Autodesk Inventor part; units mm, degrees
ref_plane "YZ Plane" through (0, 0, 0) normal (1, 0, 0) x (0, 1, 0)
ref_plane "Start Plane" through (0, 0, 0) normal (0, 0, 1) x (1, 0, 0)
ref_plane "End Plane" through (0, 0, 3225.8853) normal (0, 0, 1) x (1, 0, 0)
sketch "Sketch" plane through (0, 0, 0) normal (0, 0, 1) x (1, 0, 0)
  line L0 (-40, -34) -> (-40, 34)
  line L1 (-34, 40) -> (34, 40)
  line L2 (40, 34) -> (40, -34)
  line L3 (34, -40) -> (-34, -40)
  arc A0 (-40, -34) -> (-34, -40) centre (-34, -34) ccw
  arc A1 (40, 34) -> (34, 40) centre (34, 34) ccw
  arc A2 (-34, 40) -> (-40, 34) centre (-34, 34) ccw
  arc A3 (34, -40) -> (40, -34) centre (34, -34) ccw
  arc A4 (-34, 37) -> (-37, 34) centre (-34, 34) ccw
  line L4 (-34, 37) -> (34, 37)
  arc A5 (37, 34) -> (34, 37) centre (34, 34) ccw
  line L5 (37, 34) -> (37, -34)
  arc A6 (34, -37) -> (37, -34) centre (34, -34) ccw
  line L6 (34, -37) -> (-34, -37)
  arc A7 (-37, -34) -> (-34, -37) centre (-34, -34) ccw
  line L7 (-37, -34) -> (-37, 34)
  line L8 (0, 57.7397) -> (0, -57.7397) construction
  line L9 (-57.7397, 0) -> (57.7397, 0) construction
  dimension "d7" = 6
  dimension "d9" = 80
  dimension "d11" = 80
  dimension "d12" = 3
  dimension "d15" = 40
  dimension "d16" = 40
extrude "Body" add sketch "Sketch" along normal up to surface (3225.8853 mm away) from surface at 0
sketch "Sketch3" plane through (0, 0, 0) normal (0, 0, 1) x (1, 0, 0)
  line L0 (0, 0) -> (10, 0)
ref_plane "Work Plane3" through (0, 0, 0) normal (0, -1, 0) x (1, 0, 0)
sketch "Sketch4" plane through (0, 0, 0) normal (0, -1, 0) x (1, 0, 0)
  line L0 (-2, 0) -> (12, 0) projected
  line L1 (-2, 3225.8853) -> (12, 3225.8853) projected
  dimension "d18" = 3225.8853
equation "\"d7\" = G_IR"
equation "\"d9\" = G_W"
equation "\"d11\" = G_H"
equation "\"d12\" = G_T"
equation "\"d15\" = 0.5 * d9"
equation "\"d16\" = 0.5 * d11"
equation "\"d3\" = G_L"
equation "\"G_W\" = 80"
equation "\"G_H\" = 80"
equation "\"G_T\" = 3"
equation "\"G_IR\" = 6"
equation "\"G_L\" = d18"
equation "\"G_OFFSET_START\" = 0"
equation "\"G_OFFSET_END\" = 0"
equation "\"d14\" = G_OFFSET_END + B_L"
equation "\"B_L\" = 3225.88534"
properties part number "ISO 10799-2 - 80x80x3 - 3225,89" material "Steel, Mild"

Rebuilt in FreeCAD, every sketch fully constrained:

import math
import FreeCAD as App
import Part
import Sketcher

V = App.Vector

doc = App.newDocument("Part")
body = doc.addObject("PartDesign::Body", "Body")

sketch1 = body.newObject("Sketcher::SketchObject", "Sketch")
sketch1.AttachmentSupport = (doc.getObject("XY_Plane"), [""])
sketch1.MapMode = "FlatFace"
sketch1.addGeometry(Part.LineSegment(V(-40, 34, 0), V(-40, -34, 0)), False)
sketch1.addGeometry(Part.ArcOfCircle(Part.Circle(V(-34, -34, 0), V(0, 0, 1), 6), math.radians(180), math.radians(270)), False)
sketch1.addGeometry(Part.LineSegment(V(-34, -40, 0), V(34, -40, 0)), False)
sketch1.addGeometry(Part.ArcOfCircle(Part.Circle(V(34, -34, 0), V(0, 0, 1), 6), math.radians(-90), math.radians(0)), False)
sketch1.addGeometry(Part.LineSegment(V(40, -34, 0), V(40, 34, 0)), False)
sketch1.addGeometry(Part.ArcOfCircle(Part.Circle(V(34, 34, 0), V(0, 0, 1), 6), math.radians(0), math.radians(90)), False)
sketch1.addGeometry(Part.LineSegment(V(34, 40, 0), V(-34, 40, 0)), False)
sketch1.addGeometry(Part.ArcOfCircle(Part.Circle(V(-34, 34, 0), V(0, 0, 1), 6), math.radians(90), math.radians(180)), False)
sketch1.addGeometry(Part.ArcOfCircle(Part.Circle(V(-34, 34, 0), V(0, 0, 1), 3), math.radians(90), math.radians(180)), False)
sketch1.addGeometry(Part.LineSegment(V(-34, 37, 0), V(34, 37, 0)), False)
sketch1.addGeometry(Part.ArcOfCircle(Part.Circle(V(34, 34, 0), V(0, 0, 1), 3), math.radians(0), math.radians(90)), False)
sketch1.addGeometry(Part.LineSegment(V(37, 34, 0), V(37, -34, 0)), False)
sketch1.addGeometry(Part.ArcOfCircle(Part.Circle(V(34, -34, 0), V(0, 0, 1), 3), math.radians(-90), math.radians(0)), False)
sketch1.addGeometry(Part.LineSegment(V(34, -37, 0), V(-34, -37, 0)), False)
sketch1.addGeometry(Part.ArcOfCircle(Part.Circle(V(-34, -34, 0), V(0, 0, 1), 3), math.radians(180), math.radians(270)), False)
sketch1.addGeometry(Part.LineSegment(V(-37, -34, 0), V(-37, 34, 0)), False)
sketch1.addConstraint(Sketcher.Constraint("Tangent", 0, 2, 1, 1))
sketch1.addConstraint(Sketcher.Constraint("Tangent", 1, 2, 2, 1))
sketch1.addConstraint(Sketcher.Constraint("Tangent", 2, 2, 3, 1))
sketch1.addConstraint(Sketcher.Constraint("Tangent", 3, 2, 4, 1))
sketch1.addConstraint(Sketcher.Constraint("Tangent", 4, 2, 5, 1))
sketch1.addConstraint(Sketcher.Constraint("Tangent", 5, 2, 6, 1))
sketch1.addConstraint(Sketcher.Constraint("Tangent", 6, 2, 7, 1))
sketch1.addConstraint(Sketcher.Constraint("Tangent", 7, 2, 0, 1))
sketch1.addConstraint(Sketcher.Constraint("Tangent", 8, 1, 9, 1))
sketch1.addConstraint(Sketcher.Constraint("Tangent", 9, 2, 10, 2))
sketch1.addConstraint(Sketcher.Constraint("Tangent", 10, 1, 11, 1))
sketch1.addConstraint(Sketcher.Constraint("Tangent", 11, 2, 12, 2))
sketch1.addConstraint(Sketcher.Constraint("Tangent", 12, 1, 13, 1))
sketch1.addConstraint(Sketcher.Constraint("Tangent", 13, 2, 14, 2))
sketch1.addConstraint(Sketcher.Constraint("Tangent", 14, 1, 15, 1))
sketch1.addConstraint(Sketcher.Constraint("Tangent", 15, 2, 8, 2))
sketch1.addConstraint(Sketcher.Constraint("Vertical", 0))
sketch1.addConstraint(Sketcher.Constraint("Horizontal", 2))
sketch1.addConstraint(Sketcher.Constraint("Vertical", 4))
sketch1.addConstraint(Sketcher.Constraint("Horizontal", 6))
sketch1.addConstraint(Sketcher.Constraint("Horizontal", 9))
sketch1.addConstraint(Sketcher.Constraint("Vertical", 11))
sketch1.addConstraint(Sketcher.Constraint("Horizontal", 13))
sketch1.addConstraint(Sketcher.Constraint("Vertical", 15))
sketch1.addConstraint(Sketcher.Constraint("Coincident", 8, 3, 7, 3))
sketch1.addConstraint(Sketcher.Constraint("Coincident", 10, 3, 5, 3))
sketch1.addConstraint(Sketcher.Constraint("Coincident", 12, 3, 3, 3))
sketch1.addConstraint(Sketcher.Constraint("Equal", 1, 3))
sketch1.addConstraint(Sketcher.Constraint("Equal", 3, 5))
sketch1.addConstraint(Sketcher.Constraint("Equal", 5, 7))
sketch1.addConstraint(Sketcher.Constraint("Equal", 12, 14))
sketch1.addConstraint(Sketcher.Constraint("Symmetric", 1, 3, 5, 3, -1, 1))
sketch1.addConstraint(Sketcher.Constraint("Equal", 13, 0))
sketch1.addConstraint(Sketcher.Constraint("Radius", 1, 6.0))
sketch1.addConstraint(Sketcher.Constraint("Radius", 8, 3.0))
sketch1.addConstraint(Sketcher.Constraint("DistanceX", 0, 2, -1, 1, 40.0))
pad1 = body.newObject("PartDesign::Pad", "Pad")
pad1.Profile = sketch1
pad1.Length = 3225.8853

doc.recompute()
